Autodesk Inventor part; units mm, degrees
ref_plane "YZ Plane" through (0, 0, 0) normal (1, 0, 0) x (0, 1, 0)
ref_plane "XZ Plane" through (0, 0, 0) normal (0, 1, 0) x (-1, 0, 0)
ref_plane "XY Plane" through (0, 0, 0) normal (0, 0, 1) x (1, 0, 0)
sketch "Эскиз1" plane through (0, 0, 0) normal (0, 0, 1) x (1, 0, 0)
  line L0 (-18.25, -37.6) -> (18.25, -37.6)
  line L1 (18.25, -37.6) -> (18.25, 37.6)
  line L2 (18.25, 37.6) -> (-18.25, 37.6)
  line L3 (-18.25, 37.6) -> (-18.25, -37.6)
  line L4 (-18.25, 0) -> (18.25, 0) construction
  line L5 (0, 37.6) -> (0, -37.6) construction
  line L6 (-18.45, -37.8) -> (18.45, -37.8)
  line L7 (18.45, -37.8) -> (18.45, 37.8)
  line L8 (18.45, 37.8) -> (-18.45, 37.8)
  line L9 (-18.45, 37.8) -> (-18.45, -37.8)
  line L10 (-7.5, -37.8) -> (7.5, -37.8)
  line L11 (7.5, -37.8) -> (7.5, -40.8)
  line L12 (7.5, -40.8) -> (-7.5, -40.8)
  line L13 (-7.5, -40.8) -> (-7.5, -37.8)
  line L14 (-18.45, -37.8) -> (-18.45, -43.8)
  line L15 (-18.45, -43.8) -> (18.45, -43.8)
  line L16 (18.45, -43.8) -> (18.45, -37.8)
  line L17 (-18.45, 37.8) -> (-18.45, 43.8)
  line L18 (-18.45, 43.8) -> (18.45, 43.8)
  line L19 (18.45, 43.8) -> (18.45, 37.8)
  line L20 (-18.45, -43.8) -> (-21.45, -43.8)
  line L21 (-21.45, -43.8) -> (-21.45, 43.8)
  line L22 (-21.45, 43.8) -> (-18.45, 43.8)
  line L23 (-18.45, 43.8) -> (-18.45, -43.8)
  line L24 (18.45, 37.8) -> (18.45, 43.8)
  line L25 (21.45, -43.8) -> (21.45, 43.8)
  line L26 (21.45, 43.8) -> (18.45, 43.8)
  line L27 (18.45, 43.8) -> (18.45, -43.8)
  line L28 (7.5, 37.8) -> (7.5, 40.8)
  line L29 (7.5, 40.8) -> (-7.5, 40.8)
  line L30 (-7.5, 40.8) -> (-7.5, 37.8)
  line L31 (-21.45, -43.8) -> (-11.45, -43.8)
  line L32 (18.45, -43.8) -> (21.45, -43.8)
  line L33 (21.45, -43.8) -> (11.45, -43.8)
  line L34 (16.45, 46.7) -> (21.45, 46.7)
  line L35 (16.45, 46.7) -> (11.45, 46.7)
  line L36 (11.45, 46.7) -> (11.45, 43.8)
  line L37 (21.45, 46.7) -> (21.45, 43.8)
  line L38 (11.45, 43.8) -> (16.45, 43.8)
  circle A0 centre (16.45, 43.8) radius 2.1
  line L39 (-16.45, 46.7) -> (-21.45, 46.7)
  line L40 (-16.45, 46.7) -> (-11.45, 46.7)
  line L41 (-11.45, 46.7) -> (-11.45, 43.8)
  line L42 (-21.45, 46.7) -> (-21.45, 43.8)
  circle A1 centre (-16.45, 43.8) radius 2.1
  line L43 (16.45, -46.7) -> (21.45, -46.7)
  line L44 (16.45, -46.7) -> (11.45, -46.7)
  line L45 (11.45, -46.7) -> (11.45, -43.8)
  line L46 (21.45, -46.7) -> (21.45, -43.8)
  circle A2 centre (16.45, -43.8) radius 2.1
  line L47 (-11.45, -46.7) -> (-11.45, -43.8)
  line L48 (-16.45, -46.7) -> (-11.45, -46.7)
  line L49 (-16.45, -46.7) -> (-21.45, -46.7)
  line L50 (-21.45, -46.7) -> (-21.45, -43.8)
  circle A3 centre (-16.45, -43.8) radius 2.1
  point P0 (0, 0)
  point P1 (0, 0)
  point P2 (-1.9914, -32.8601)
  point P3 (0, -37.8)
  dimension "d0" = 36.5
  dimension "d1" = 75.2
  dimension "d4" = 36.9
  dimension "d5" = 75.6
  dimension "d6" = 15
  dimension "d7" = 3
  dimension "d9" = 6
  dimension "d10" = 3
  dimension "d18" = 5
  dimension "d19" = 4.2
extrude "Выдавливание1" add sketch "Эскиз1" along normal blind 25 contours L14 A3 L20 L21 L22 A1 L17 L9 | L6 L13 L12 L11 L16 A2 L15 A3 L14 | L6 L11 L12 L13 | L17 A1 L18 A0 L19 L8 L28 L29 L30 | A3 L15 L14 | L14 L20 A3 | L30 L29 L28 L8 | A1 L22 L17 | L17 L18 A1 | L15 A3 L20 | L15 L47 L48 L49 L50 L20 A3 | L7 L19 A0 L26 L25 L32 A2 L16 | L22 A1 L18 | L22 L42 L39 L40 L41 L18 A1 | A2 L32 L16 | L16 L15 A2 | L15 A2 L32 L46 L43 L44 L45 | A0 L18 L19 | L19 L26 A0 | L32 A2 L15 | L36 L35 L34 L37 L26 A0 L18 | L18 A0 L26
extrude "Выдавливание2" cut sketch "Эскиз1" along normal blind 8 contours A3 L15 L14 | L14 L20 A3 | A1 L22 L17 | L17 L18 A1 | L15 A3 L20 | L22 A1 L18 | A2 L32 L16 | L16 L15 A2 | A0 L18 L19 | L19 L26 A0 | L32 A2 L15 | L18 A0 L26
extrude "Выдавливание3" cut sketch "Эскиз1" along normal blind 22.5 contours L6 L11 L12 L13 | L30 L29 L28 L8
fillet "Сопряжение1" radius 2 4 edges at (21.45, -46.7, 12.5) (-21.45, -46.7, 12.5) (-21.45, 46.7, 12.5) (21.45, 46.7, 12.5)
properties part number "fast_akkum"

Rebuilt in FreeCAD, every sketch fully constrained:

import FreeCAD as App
import Part
import Sketcher

V = App.Vector
Q = App.Units.Quantity


def edges_at(feature, points):
    """Names of the edges that pass closest to the given points."""
    edges = feature.Shape.Edges
    near = lambda p: min(range(len(edges)), key=lambda i: edges[i].distToShape(Part.Vertex(*p))[0])
    return sorted({f"Edge{near(p) + 1}" for p in points})

doc = App.newDocument("Part")
body = doc.addObject("PartDesign::Body", "Body")

# Sketch on XY plane
sketch1 = doc.addObject("Sketcher::SketchObject", "Sketch")
body.addObject(sketch1)
sketch1.AttachmentSupport = (doc.XY_Plane, [""])
sketch1.MapMode = "FlatFace"
sketch1.addGeometry([
    Part.LineSegment(V(-21.4, -46.7, 0), V(-11.4, -46.7, 0)),  # 0
    Part.LineSegment(V(-11.4, -46.7, 0), V(-11.4, -43.8, 0)),  # 1
    Part.LineSegment(V(-11.4, -43.8, 0), V(11.4, -43.8, 0)),  # 2
    Part.LineSegment(V(11.4, -43.8, 0), V(11.4, -46.7, 0)),  # 3
    Part.LineSegment(V(11.4, -46.7, 0), V(21.4, -46.7, 0)),  # 4
    Part.LineSegment(V(21.4, -46.7, 0), V(21.4, 46.7, 0)),  # 5
    Part.LineSegment(V(21.4, 46.7, 0), V(11.4, 46.7, 0)),  # 6
    Part.LineSegment(V(11.4, 46.7, 0), V(11.4, 43.8, 0)),  # 7
    Part.LineSegment(V(11.4, 43.8, 0), V(-11.4, 43.8, 0)),  # 8
    Part.LineSegment(V(-11.4, 43.8, 0), V(-11.4, 46.7, 0)),  # 9
    Part.LineSegment(V(-11.4, 46.7, 0), V(-21.4, 46.7, 0)),  # 10
    Part.LineSegment(V(-21.4, 46.7, 0), V(-21.4, -46.7, 0)),  # 11
    Part.LineSegment(V(-18.4, -37.8, 0), V(-18.4, 37.8, 0)),  # 12
    Part.LineSegment(V(-18.4, 37.8, 0), V(18.4, 37.8, 0)),  # 13
    Part.LineSegment(V(18.4, 37.8, 0), V(18.4, -37.8, 0)),  # 14
    Part.LineSegment(V(18.4, -37.8, 0), V(-18.4, -37.8, 0)),  # 15
], False)
sketch1.addConstraint([
    Sketcher.Constraint("Coincident", 0, 2, 1, 1),
    Sketcher.Constraint("Coincident", 1, 2, 2, 1),
    Sketcher.Constraint("Coincident", 2, 2, 3, 1),
    Sketcher.Constraint("Coincident", 3, 2, 4, 1),
    Sketcher.Constraint("Coincident", 4, 2, 5, 1),
    Sketcher.Constraint("Coincident", 5, 2, 6, 1),
    Sketcher.Constraint("Coincident", 6, 2, 7, 1),
    Sketcher.Constraint("Coincident", 7, 2, 8, 1),
    Sketcher.Constraint("Coincident", 8, 2, 9, 1),
    Sketcher.Constraint("Coincident", 9, 2, 10, 1),
    Sketcher.Constraint("Coincident", 10, 2, 11, 1),
    Sketcher.Constraint("Coincident", 11, 2, 0, 1),
    Sketcher.Constraint("Coincident", 12, 2, 13, 1),
    Sketcher.Constraint("Coincident", 13, 2, 14, 1),
    Sketcher.Constraint("Coincident", 14, 2, 15, 1),
    Sketcher.Constraint("Coincident", 15, 2, 12, 1),
    Sketcher.Constraint("Horizontal", 0),
    Sketcher.Constraint("Vertical", 1),
    Sketcher.Constraint("Horizontal", 2),
    Sketcher.Constraint("Vertical", 3),
    Sketcher.Constraint("Horizontal", 4),
    Sketcher.Constraint("Vertical", 5),
    Sketcher.Constraint("Horizontal", 6),
    Sketcher.Constraint("Vertical", 7),
    Sketcher.Constraint("Horizontal", 8),
    Sketcher.Constraint("Vertical", 9),
    Sketcher.Constraint("Horizontal", 10),
    Sketcher.Constraint("Vertical", 11),
    Sketcher.Constraint("Vertical", 12),
    Sketcher.Constraint("Horizontal", 13),
    Sketcher.Constraint("Vertical", 14),
    Sketcher.Constraint("Horizontal", 15),
    Sketcher.Constraint("Symmetric", 0, 2, 6, 2, -1, 1),
    Sketcher.Constraint("Symmetric", 2, 2, 8, 2, -1, 1),
    Sketcher.Constraint("Symmetric", 4, 2, 10, 2, -1, 1),
    Sketcher.Constraint("Symmetric", 12, 2, 14, 2, -1, 1),
    Sketcher.Constraint("Symmetric", 0, 2, 3, 2, -2),
    Sketcher.Constraint("DistanceX", 13, 1, 13, 2, Q("36.9 mm")),
    Sketcher.Constraint("DistanceY", 12, 1, 12, 2, Q("75.6 mm")),
    Sketcher.Constraint("DistanceY", 12, 2, 8, 2, Q("6 mm")),
    Sketcher.Constraint("DistanceX", 10, 2, 12, 2, Q("3 mm")),
    Sketcher.Constraint("DistanceX", 0, 1, 0, 2, Q("10 mm")),
    Sketcher.Constraint("DistanceY", 1, 1, 1, 2, Q("2.9 mm")),
])
pad1 = doc.addObject("PartDesign::Pad", "Pad")
body.addObject(pad1)
pad1.Profile = sketch1
pad1.Length = 25

# Sketch on XY plane
sketch2 = doc.addObject("Sketcher::SketchObject", "Sketch001")
body.addObject(sketch2)
sketch2.AttachmentSupport = (doc.XY_Plane, [""])
sketch2.MapMode = "FlatFace"
sketch2.addGeometry([
    Part.Circle(V(-16.4, -43.8, 0), V(0, 0, 1), 2.1),
    Part.Circle(V(-16.4, 43.8, 0), V(0, 0, 1), 2.1),
    Part.Circle(V(16.4, -43.8, 0), V(0, 0, 1), 2.1),
    Part.Circle(V(16.4, 43.8, 0), V(0, 0, 1), 2.1),
], False)
sketch2.addConstraint([
    Sketcher.Constraint("Equal", 0, 1),
    Sketcher.Constraint("Equal", 1, 2),
    Sketcher.Constraint("Equal", 2, 3),
    Sketcher.Constraint("Symmetric", 1, 3, 2, 3, -1, 1),
    Sketcher.Constraint("Symmetric", 0, 3, 3, 3, -1, 1),
    Sketcher.Constraint("Symmetric", 0, 3, 2, 3, -2),
    Sketcher.Constraint("Diameter", 0, Q("4.2 mm")),
    Sketcher.Constraint("DistanceY", 0, 3, -1, 1, Q("43.8 mm")),
    Sketcher.Constraint("DistanceX", 0, 3, 2, 3, Q("32.9 mm")),
])
pocket1 = doc.addObject("PartDesign::Pocket", "Pocket")
body.addObject(pocket1)
pocket1.Profile = sketch2
pocket1.Length = 8
pocket1.Reversed = True

# Sketch on XY plane
sketch3 = doc.addObject("Sketcher::SketchObject", "Sketch002")
body.addObject(sketch3)
sketch3.AttachmentSupport = (doc.XY_Plane, [""])
sketch3.MapMode = "FlatFace"
sketch3.addGeometry([
    Part.LineSegment(V(7.5, -37.8, 0), V(-7.5, -37.8, 0)),  # 0
    Part.LineSegment(V(-7.5, -37.8, 0), V(-7.5, -40.8, 0)),  # 1
    Part.LineSegment(V(-7.5, -40.8, 0), V(7.5, -40.8, 0)),  # 2
    Part.LineSegment(V(7.5, -40.8, 0), V(7.5, -37.8, 0)),  # 3
    Part.LineSegment(V(-7.5, 40.8, 0), V(-7.5, 37.8, 0)),  # 4
    Part.LineSegment(V(-7.5, 37.8, 0), V(7.5, 37.8, 0)),  # 5
    Part.LineSegment(V(7.5, 37.8, 0), V(7.5, 40.8, 0)),  # 6
    Part.LineSegment(V(7.5, 40.8, 0), V(-7.5, 40.8, 0)),  # 7
], False)
sketch3.addConstraint([
    Sketcher.Constraint("Coincident", 0, 2, 1, 1),
    Sketcher.Constraint("Coincident", 1, 2, 2, 1),
    Sketcher.Constraint("Coincident", 2, 2, 3, 1),
    Sketcher.Constraint("Coincident", 3, 2, 0, 1),
    Sketcher.Constraint("Coincident", 4, 2, 5, 1),
    Sketcher.Constraint("Coincident", 5, 2, 6, 1),
    Sketcher.Constraint("Coincident", 6, 2, 7, 1),
    Sketcher.Constraint("Coincident", 7, 2, 4, 1),
    Sketcher.Constraint("Horizontal", 0),
    Sketcher.Constraint("Vertical", 1),
    Sketcher.Constraint("Horizontal", 2),
    Sketcher.Constraint("Vertical", 3),
    Sketcher.Constraint("Vertical", 4),
    Sketcher.Constraint("Horizontal", 5),
    Sketcher.Constraint("Vertical", 6),
    Sketcher.Constraint("Horizontal", 7),
    Sketcher.Constraint("Symmetric", 3, 2, 4, 2, -1, 1),
    Sketcher.Constraint("Symmetric", 1, 2, 6, 2, -1, 1),
    Sketcher.Constraint("Vertical", 1, 2, 4, 2),
    Sketcher.Constraint("DistanceX", 0, 2, 0, 1, Q("15 mm")),
    Sketcher.Constraint("DistanceY", 1, 2, 1, 1, Q("3 mm")),
    Sketcher.Constraint("DistanceY", 0, 2, 4, 2, Q("75.6 mm")),
])
pocket2 = doc.addObject("PartDesign::Pocket", "Pocket001")
body.addObject(pocket2)
pocket2.Profile = sketch3
pocket2.Length = 22.5
pocket2.Reversed = True
doc.recompute()

fillet = doc.addObject("PartDesign::Fillet", "Fillet")
body.addObject(fillet)
fillet.Base = (pocket2, edges_at(pocket2, [
    (21.45, -46.7, 12.5),
    (-21.45, -46.7, 12.5),
    (-21.45, 46.7, 12.5),
    (21.45, 46.7, 12.5),
]))
fillet.Radius = 2

doc.recompute()
